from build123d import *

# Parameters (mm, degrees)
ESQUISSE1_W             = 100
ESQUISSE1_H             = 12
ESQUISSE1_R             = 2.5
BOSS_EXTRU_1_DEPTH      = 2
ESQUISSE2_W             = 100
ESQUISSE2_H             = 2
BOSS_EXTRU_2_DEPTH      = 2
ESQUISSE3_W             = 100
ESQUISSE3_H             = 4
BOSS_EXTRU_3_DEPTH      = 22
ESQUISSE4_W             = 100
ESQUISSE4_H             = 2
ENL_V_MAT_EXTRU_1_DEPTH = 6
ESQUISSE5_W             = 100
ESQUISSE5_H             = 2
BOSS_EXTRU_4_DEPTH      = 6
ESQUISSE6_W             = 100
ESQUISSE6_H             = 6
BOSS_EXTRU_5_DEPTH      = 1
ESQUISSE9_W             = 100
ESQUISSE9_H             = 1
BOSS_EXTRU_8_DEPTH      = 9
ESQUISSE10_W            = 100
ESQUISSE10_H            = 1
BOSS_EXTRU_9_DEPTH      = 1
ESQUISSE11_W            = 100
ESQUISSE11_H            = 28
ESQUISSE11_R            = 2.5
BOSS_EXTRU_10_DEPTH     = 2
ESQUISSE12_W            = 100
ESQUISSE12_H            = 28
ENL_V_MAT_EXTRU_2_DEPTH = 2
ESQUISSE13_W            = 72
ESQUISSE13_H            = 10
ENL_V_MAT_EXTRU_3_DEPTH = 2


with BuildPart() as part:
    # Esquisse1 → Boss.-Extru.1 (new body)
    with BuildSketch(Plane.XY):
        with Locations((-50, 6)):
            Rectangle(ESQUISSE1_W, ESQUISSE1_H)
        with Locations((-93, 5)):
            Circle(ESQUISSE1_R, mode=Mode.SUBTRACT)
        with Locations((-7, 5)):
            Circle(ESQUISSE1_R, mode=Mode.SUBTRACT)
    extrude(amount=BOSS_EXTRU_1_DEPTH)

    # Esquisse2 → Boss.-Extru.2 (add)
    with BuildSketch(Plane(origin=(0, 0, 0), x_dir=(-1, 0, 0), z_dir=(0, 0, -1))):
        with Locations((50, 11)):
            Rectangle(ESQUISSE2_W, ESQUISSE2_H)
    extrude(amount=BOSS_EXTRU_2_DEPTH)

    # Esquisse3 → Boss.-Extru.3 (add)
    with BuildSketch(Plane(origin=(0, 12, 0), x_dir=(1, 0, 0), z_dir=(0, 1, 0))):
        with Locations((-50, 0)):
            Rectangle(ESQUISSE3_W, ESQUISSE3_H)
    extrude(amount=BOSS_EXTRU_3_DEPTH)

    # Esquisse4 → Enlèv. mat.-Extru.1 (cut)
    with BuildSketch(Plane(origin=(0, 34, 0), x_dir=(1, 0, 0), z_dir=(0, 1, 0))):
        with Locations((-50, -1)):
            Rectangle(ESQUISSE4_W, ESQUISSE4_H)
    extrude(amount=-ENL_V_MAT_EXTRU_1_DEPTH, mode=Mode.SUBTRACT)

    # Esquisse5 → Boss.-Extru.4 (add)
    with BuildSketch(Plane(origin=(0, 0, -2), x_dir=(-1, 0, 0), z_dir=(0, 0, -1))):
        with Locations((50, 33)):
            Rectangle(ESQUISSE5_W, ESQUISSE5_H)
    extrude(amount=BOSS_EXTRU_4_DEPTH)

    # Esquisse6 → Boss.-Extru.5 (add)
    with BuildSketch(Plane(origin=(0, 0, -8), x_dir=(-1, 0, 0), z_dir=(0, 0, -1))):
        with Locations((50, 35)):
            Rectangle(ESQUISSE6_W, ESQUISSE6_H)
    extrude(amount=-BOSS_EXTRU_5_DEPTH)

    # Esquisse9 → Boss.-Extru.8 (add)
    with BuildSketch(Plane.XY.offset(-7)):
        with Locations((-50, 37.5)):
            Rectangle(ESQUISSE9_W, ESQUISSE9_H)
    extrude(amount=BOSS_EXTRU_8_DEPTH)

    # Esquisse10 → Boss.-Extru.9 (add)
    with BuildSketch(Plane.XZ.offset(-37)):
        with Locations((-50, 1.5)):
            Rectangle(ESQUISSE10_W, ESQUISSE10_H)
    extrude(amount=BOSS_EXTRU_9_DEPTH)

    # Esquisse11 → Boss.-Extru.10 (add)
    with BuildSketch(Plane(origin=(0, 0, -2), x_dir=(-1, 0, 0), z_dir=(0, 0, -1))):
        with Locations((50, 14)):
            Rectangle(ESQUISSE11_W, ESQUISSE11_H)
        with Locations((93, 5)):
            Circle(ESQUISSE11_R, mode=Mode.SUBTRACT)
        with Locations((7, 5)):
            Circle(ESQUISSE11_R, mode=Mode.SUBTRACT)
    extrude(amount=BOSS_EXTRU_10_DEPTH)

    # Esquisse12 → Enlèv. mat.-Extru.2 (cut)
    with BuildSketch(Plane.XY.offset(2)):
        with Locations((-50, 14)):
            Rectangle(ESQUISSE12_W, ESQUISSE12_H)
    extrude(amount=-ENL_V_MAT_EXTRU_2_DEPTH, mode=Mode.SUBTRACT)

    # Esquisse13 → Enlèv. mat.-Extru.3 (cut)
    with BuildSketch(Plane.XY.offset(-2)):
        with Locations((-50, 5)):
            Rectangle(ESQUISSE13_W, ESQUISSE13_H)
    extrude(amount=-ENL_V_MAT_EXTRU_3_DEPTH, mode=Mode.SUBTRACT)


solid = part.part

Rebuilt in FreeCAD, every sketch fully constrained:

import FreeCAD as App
import Part
import Sketcher
from FreeCAD import Vector

doc = App.newDocument("Part")
body = doc.addObject("PartDesign::Body", "Body")

sketch1 = body.newObject("Sketcher::SketchObject", "Sketch")
sketch1.AttachmentSupport = (doc.getObject("XY_Plane"), [""])
sketch1.MapMode = "FlatFace"
sketch1.addGeometry(Part.LineSegment(Vector(-100, 12, 0), Vector(-100, 0, 0)), False)
sketch1.addGeometry(Part.LineSegment(Vector(-100, 0, 0), Vector(0, 0, 0)), False)
sketch1.addGeometry(Part.LineSegment(Vector(0, 0, 0), Vector(0, 12, 0)), False)
sketch1.addGeometry(Part.LineSegment(Vector(0, 12, 0), Vector(-100, 12, 0)), False)
sketch1.addGeometry(Part.Circle(Vector(-93, 5, 0), Vector(0, 0, 1), 2.5), False)
sketch1.addGeometry(Part.Circle(Vector(-7, 5, 0), Vector(0, 0, 1), 2.5), False)
sketch1.addConstraint(Sketcher.Constraint("Coincident", 0, 2, 1, 1))
sketch1.addConstraint(Sketcher.Constraint("Coincident", 1, 2, 2, 1))
sketch1.addConstraint(Sketcher.Constraint("Coincident", 2, 2, 3, 1))
sketch1.addConstraint(Sketcher.Constraint("Coincident", 3, 2, 0, 1))
sketch1.addConstraint(Sketcher.Constraint("Vertical", 0))
sketch1.addConstraint(Sketcher.Constraint("Horizontal", 1))
sketch1.addConstraint(Sketcher.Constraint("Vertical", 2))
sketch1.addConstraint(Sketcher.Constraint("Horizontal", 3))
sketch1.addConstraint(Sketcher.Constraint("Coincident", 1, 2, -1, 1))
sketch1.addConstraint(Sketcher.Constraint("Equal", 4, 5))
sketch1.addConstraint(Sketcher.Constraint("Horizontal", 4, 3, 5, 3))
sketch1.addConstraint(Sketcher.Constraint("Diameter", 4, 5.0))
sketch1.addConstraint(Sketcher.Constraint("DistanceX", 1, 1, 1, 2, 100.0))
sketch1.addConstraint(Sketcher.Constraint("DistanceY", 0, 2, 0, 1, 12.0))
sketch1.addConstraint(Sketcher.Constraint("DistanceX", 4, 3, -1, 1, 93.0))
sketch1.addConstraint(Sketcher.Constraint("DistanceY", -1, 1, 4, 3, 5.0))
sketch1.addConstraint(Sketcher.Constraint("DistanceX", 5, 3, -1, 1, 7.0))
pad1 = body.newObject("PartDesign::Pad", "Pad")
pad1.Profile = sketch1
pad1.Length = 2

sketch2 = body.newObject("Sketcher::SketchObject", "Sketch001")
sketch2.AttachmentSupport = (doc.getObject("XY_Plane"), [""])
sketch2.MapMode = "FlatFace"
sketch2.addGeometry(Part.LineSegment(Vector(0, 12, 0), Vector(0, 10, 0)), False)
sketch2.addGeometry(Part.LineSegment(Vector(0, 10, 0), Vector(-100, 10, 0)), False)
sketch2.addGeometry(Part.LineSegment(Vector(-100, 10, 0), Vector(-100, 12, 0)), False)
sketch2.addGeometry(Part.LineSegment(Vector(-100, 12, 0), Vector(0, 12, 0)), False)
sketch2.addConstraint(Sketcher.Constraint("Coincident", 0, 2, 1, 1))
sketch2.addConstraint(Sketcher.Constraint("Coincident", 1, 2, 2, 1))
sketch2.addConstraint(Sketcher.Constraint("Coincident", 2, 2, 3, 1))
sketch2.addConstraint(Sketcher.Constraint("Coincident", 3, 2, 0, 1))
sketch2.addConstraint(Sketcher.Constraint("Vertical", 0))
sketch2.addConstraint(Sketcher.Constraint("Horizontal", 1))
sketch2.addConstraint(Sketcher.Constraint("Vertical", 2))
sketch2.addConstraint(Sketcher.Constraint("Horizontal", 3))
sketch2.addConstraint(Sketcher.Constraint("PointOnObject", 0, 2, -2))
sketch2.addConstraint(Sketcher.Constraint("DistanceX", 1, 2, 1, 1, 100.0))
sketch2.addConstraint(Sketcher.Constraint("DistanceY", 0, 2, 0, 1, 2.0))
sketch2.addConstraint(Sketcher.Constraint("DistanceY", -1, 1, 0, 2, 10.0))
pad2 = body.newObject("PartDesign::Pad", "Pad001")
pad2.Profile = sketch2
pad2.Length = 2
pad2.Reversed = True

sketch3 = body.newObject("Sketcher::SketchObject", "Sketch002")
sketch3.AttachmentSupport = (doc.getObject("XZ_Plane"), [""])
sketch3.MapMode = "FlatFace"
sketch3.AttachmentOffset = App.Placement(Vector(0, 0, -12), App.Rotation())
sketch3.addGeometry(Part.LineSegment(Vector(-100, -2, 0), Vector(-100, 2, 0)), False)
sketch3.addGeometry(Part.LineSegment(Vector(-100, 2, 0), Vector(0, 2, 0)), False)
sketch3.addGeometry(Part.LineSegment(Vector(0, 2, 0), Vector(0, -2, 0)), False)
sketch3.addGeometry(Part.LineSegment(Vector(0, -2, 0), Vector(-100, -2, 0)), False)
sketch3.addConstraint(Sketcher.Constraint("Coincident", 0, 2, 1, 1))
sketch3.addConstraint(Sketcher.Constraint("Coincident", 1, 2, 2, 1))
sketch3.addConstraint(Sketcher.Constraint("Coincident", 2, 2, 3, 1))
sketch3.addConstraint(Sketcher.Constraint("Coincident", 3, 2, 0, 1))
sketch3.addConstraint(Sketcher.Constraint("Vertical", 0))
sketch3.addConstraint(Sketcher.Constraint("Horizontal", 1))
sketch3.addConstraint(Sketcher.Constraint("Vertical", 2))
sketch3.addConstraint(Sketcher.Constraint("Horizontal", 3))
sketch3.addConstraint(Sketcher.Constraint("Symmetric", 1, 2, 2, 2, -1, 1))
sketch3.addConstraint(Sketcher.Constraint("DistanceX", 1, 1, 1, 2, 100.0))
sketch3.addConstraint(Sketcher.Constraint("DistanceY", 0, 1, 0, 2, 4.0))
pad3 = body.newObject("PartDesign::Pad", "Pad002")
pad3.Profile = sketch3
pad3.Length = 22
pad3.Reversed = True

sketch4 = body.newObject("Sketcher::SketchObject", "Sketch003")
sketch4.AttachmentSupport = (doc.getObject("XZ_Plane"), [""])
sketch4.MapMode = "FlatFace"
sketch4.AttachmentOffset = App.Placement(Vector(0, 0, -34), App.Rotation())
sketch4.addGeometry(Part.LineSegment(Vector(-100, 0, 0), Vector(-100, 2, 0)), False)
sketch4.addGeometry(Part.LineSegment(Vector(-100, 2, 0), Vector(0, 2, 0)), False)
sketch4.addGeometry(Part.LineSegment(Vector(0, 2, 0), Vector(0, 0, 0)), False)
sketch4.addGeometry(Part.LineSegment(Vector(0, 0, 0), Vector(-100, 0, 0)), False)
sketch4.addConstraint(Sketcher.Constraint("Coincident", 0, 2, 1, 1))
sketch4.addConstraint(Sketcher.Constraint("Coincident", 1, 2, 2, 1))
sketch4.addConstraint(Sketcher.Constraint("Coincident", 2, 2, 3, 1))
sketch4.addConstraint(Sketcher.Constraint("Coincident", 3, 2, 0, 1))
sketch4.addConstraint(Sketcher.Constraint("Vertical", 0))
sketch4.addConstraint(Sketcher.Constraint("Horizontal", 1))
sketch4.addConstraint(Sketcher.Constraint("Vertical", 2))
sketch4.addConstraint(Sketcher.Constraint("Horizontal", 3))
sketch4.addConstraint(Sketcher.Constraint("Coincident", 2, 2, -1, 1))
sketch4.addConstraint(Sketcher.Constraint("DistanceX", 1, 1, 1, 2, 100.0))
sketch4.addConstraint(Sketcher.Constraint("DistanceY", 0, 1, 0, 2, 2.0))
pocket1 = body.newObject("PartDesign::Pocket", "Pocket")
pocket1.Profile = sketch4
pocket1.Length = 6
pocket1.Reversed = True

sketch5 = body.newObject("Sketcher::SketchObject", "Sketch004")
sketch5.AttachmentSupport = (doc.getObject("XY_Plane"), [""])
sketch5.MapMode = "FlatFace"
sketch5.AttachmentOffset = App.Placement(Vector(0, 0, -2), App.Rotation())
sketch5.addGeometry(Part.LineSegment(Vector(0, 34, 0), Vector(0, 32, 0)), False)
sketch5.addGeometry(Part.LineSegment(Vector(0, 32, 0), Vector(-100, 32, 0)), False)
sketch5.addGeometry(Part.LineSegment(Vector(-100, 32, 0), Vector(-100, 34, 0)), False)
sketch5.addGeometry(Part.LineSegment(Vector(-100, 34, 0), Vector(0, 34, 0)), False)
sketch5.addConstraint(Sketcher.Constraint("Coincident", 0, 2, 1, 1))
sketch5.addConstraint(Sketcher.Constraint("Coincident", 1, 2, 2, 1))
sketch5.addConstraint(Sketcher.Constraint("Coincident", 2, 2, 3, 1))
sketch5.addConstraint(Sketcher.Constraint("Coincident", 3, 2, 0, 1))
sketch5.addConstraint(Sketcher.Constraint("Vertical", 0))
sketch5.addConstraint(Sketcher.Constraint("Horizontal", 1))
sketch5.addConstraint(Sketcher.Constraint("Vertical", 2))
sketch5.addConstraint(Sketcher.Constraint("Horizontal", 3))
sketch5.addConstraint(Sketcher.Constraint("PointOnObject", 0, 2, -2))
sketch5.addConstraint(Sketcher.Constraint("DistanceX", 1, 2, 1, 1, 100.0))
sketch5.addConstraint(Sketcher.Constraint("DistanceY", 0, 2, 0, 1, 2.0))
sketch5.addConstraint(Sketcher.Constraint("DistanceY", -1, 1, 0, 2, 32.0))
pad4 = body.newObject("PartDesign::Pad", "Pad003")
pad4.Profile = sketch5
pad4.Length = 6
pad4.Reversed = True

sketch6 = body.newObject("Sketcher::SketchObject", "Sketch005")
sketch6.AttachmentSupport = (doc.getObject("XY_Plane"), [""])
sketch6.MapMode = "FlatFace"
sketch6.AttachmentOffset = App.Placement(Vector(0, 0, -8), App.Rotation())
sketch6.addGeometry(Part.LineSegment(Vector(0, 38, 0), Vector(0, 32, 0)), False)
sketch6.addGeometry(Part.LineSegment(Vector(0, 32, 0), Vector(-100, 32, 0)), False)
sketch6.addGeometry(Part.LineSegment(Vector(-100, 32, 0), Vector(-100, 38, 0)), False)
sketch6.addGeometry(Part.LineSegment(Vector(-100, 38, 0), Vector(0, 38, 0)), False)
sketch6.addConstraint(Sketcher.Constraint("Coincident", 0, 2, 1, 1))
sketch6.addConstraint(Sketcher.Constraint("Coincident", 1, 2, 2, 1))
sketch6.addConstraint(Sketcher.Constraint("Coincident", 2, 2, 3, 1))
sketch6.addConstraint(Sketcher.Constraint("Coincident", 3, 2, 0, 1))
sketch6.addConstraint(Sketcher.Constraint("Vertical", 0))
sketch6.addConstraint(Sketcher.Constraint("Horizontal", 1))
sketch6.addConstraint(Sketcher.Constraint("Vertical", 2))
sketch6.addConstraint(Sketcher.Constraint("Horizontal", 3))
sketch6.addConstraint(Sketcher.Constraint("PointOnObject", 0, 2, -2))
sketch6.addConstraint(Sketcher.Constraint("DistanceX", 1, 2, 1, 1, 100.0))
sketch6.addConstraint(Sketcher.Constraint("DistanceY", 0, 2, 0, 1, 6.0))
sketch6.addConstraint(Sketcher.Constraint("DistanceY", -1, 1, 0, 2, 32.0))
pad5 = body.newObject("PartDesign::Pad", "Pad004")
pad5.Profile = sketch6
pad5.Length = 1

sketch7 = body.newObject("Sketcher::SketchObject", "Sketch006")
sketch7.AttachmentSupport = (doc.getObject("XY_Plane"), [""])
sketch7.MapMode = "FlatFace"
sketch7.AttachmentOffset = App.Placement(Vector(0, 0, -7), App.Rotation())
sketch7.addGeometry(Part.LineSegment(Vector(-100, 38, 0), Vector(-100, 37, 0)), False)
sketch7.addGeometry(Part.LineSegment(Vector(-100, 37, 0), Vector(0, 37, 0)), False)
sketch7.addGeometry(Part.LineSegment(Vector(0, 37, 0), Vector(0, 38, 0)), False)
sketch7.addGeometry(Part.LineSegment(Vector(0, 38, 0), Vector(-100, 38, 0)), False)
sketch7.addConstraint(Sketcher.Constraint("Coincident", 0, 2, 1, 1))
sketch7.addConstraint(Sketcher.Constraint("Coincident", 1, 2, 2, 1))
sketch7.addConstraint(Sketcher.Constraint("Coincident", 2, 2, 3, 1))
sketch7.addConstraint(Sketcher.Constraint("Coincident", 3, 2, 0, 1))
sketch7.addConstraint(Sketcher.Constraint("Vertical", 0))
sketch7.addConstraint(Sketcher.Constraint("Horizontal", 1))
sketch7.addConstraint(Sketcher.Constraint("Vertical", 2))
sketch7.addConstraint(Sketcher.Constraint("Horizontal", 3))
sketch7.addConstraint(Sketcher.Constraint("PointOnObject", 1, 2, -2))
sketch7.addConstraint(Sketcher.Constraint("DistanceX", 1, 1, 1, 2, 100.0))
sketch7.addConstraint(Sketcher.Constraint("DistanceY", 0, 2, 0, 1, 1.0))
sketch7.addConstraint(Sketcher.Constraint("DistanceY", -1, 1, 0, 2, 37.0))
pad6 = body.newObject("PartDesign::Pad", "Pad005")
pad6.Profile = sketch7
pad6.Length = 9

sketch8 = body.newObject("Sketcher::SketchObject", "Sketch007")
sketch8.AttachmentSupport = (doc.getObject("XZ_Plane"), [""])
sketch8.MapMode = "FlatFace"
sketch8.AttachmentOffset = App.Placement(Vector(0, 0, -37), App.Rotation())
sketch8.addGeometry(Part.LineSegment(Vector(-100, 2, 0), Vector(-100, 1, 0)), False)
sketch8.addGeometry(Part.LineSegment(Vector(-100, 1, 0), Vector(0, 1, 0)), False)
sketch8.addGeometry(Part.LineSegment(Vector(0, 1, 0), Vector(0, 2, 0)), False)
sketch8.addGeometry(Part.LineSegment(Vector(0, 2, 0), Vector(-100, 2, 0)), False)
sketch8.addConstraint(Sketcher.Constraint("Coincident", 0, 2, 1, 1))
sketch8.addConstraint(Sketcher.Constraint("Coincident", 1, 2, 2, 1))
sketch8.addConstraint(Sketcher.Constraint("Coincident", 2, 2, 3, 1))
sketch8.addConstraint(Sketcher.Constraint("Coincident", 3, 2, 0, 1))
sketch8.addConstraint(Sketcher.Constraint("Vertical", 0))
sketch8.addConstraint(Sketcher.Constraint("Horizontal", 1))
sketch8.addConstraint(Sketcher.Constraint("Vertical", 2))
sketch8.addConstraint(Sketcher.Constraint("Horizontal", 3))
sketch8.addConstraint(Sketcher.Constraint("PointOnObject", 1, 2, -2))
sketch8.addConstraint(Sketcher.Constraint("DistanceX", 1, 1, 1, 2, 100.0))
sketch8.addConstraint(Sketcher.Constraint("DistanceY", 0, 2, 0, 1, 1.0))
sketch8.addConstraint(Sketcher.Constraint("DistanceY", -1, 1, 0, 2, 1.0))
pad7 = body.newObject("PartDesign::Pad", "Pad006")
pad7.Profile = sketch8
pad7.Length = 1

sketch9 = body.newObject("Sketcher::SketchObject", "Sketch008")
sketch9.AttachmentSupport = (doc.getObject("XY_Plane"), [""])
sketch9.MapMode = "FlatFace"
sketch9.AttachmentOffset = App.Placement(Vector(0, 0, -2), App.Rotation())
sketch9.addGeometry(Part.LineSegment(Vector(0, 28, 0), Vector(0, 0, 0)), False)
sketch9.addGeometry(Part.LineSegment(Vector(0, 0, 0), Vector(-100, 0, 0)), False)
sketch9.addGeometry(Part.LineSegment(Vector(-100, 0, 0), Vector(-100, 28, 0)), False)
sketch9.addGeometry(Part.LineSegment(Vector(-100, 28, 0), Vector(0, 28, 0)), False)
sketch9.addGeometry(Part.Circle(Vector(-7, 5, 0), Vector(0, 0, 1), 2.5), False)
sketch9.addGeometry(Part.Circle(Vector(-93, 5, 0), Vector(0, 0, 1), 2.5), False)
sketch9.addConstraint(Sketcher.Constraint("Coincident", 0, 2, 1, 1))
sketch9.addConstraint(Sketcher.Constraint("Coincident", 1, 2, 2, 1))
sketch9.addConstraint(Sketcher.Constraint("Coincident", 2, 2, 3, 1))
sketch9.addConstraint(Sketcher.Constraint("Coincident", 3, 2, 0, 1))
sketch9.addConstraint(Sketcher.Constraint("Vertical", 0))
sketch9.addConstraint(Sketcher.Constraint("Horizontal", 1))
sketch9.addConstraint(Sketcher.Constraint("Vertical", 2))
sketch9.addConstraint(Sketcher.Constraint("Horizontal", 3))
sketch9.addConstraint(Sketcher.Constraint("Coincident", 0, 2, -1, 1))
sketch9.addConstraint(Sketcher.Constraint("Equal", 4, 5))
sketch9.addConstraint(Sketcher.Constraint("Horizontal", 4, 3, 5, 3))
sketch9.addConstraint(Sketcher.Constraint("Diameter", 4, 5.0))
sketch9.addConstraint(Sketcher.Constraint("DistanceX", 1, 2, 1, 1, 100.0))
sketch9.addConstraint(Sketcher.Constraint("DistanceY", 0, 2, 0, 1, 28.0))
sketch9.addConstraint(Sketcher.Constraint("DistanceX", 4, 3, -1, 1, 7.0))
sketch9.addConstraint(Sketcher.Constraint("DistanceY", -1, 1, 4, 3, 5.0))
sketch9.addConstraint(Sketcher.Constraint("DistanceX", 5, 3, -1, 1, 93.0))
pad8 = body.newObject("PartDesign::Pad", "Pad007")
pad8.Profile = sketch9
pad8.Length = 2
pad8.Reversed = True

sketch10 = body.newObject("Sketcher::SketchObject", "Sketch009")
sketch10.AttachmentSupport = (doc.getObject("XY_Plane"), [""])
sketch10.MapMode = "FlatFace"
sketch10.AttachmentOffset = App.Placement(Vector(0, 0, 2), App.Rotation())
sketch10.addGeometry(Part.LineSegment(Vector(-100, 28, 0), Vector(-100, 0, 0)), False)
sketch10.addGeometry(Part.LineSegment(Vector(-100, 0, 0), Vector(0, 0, 0)), False)
sketch10.addGeometry(Part.LineSegment(Vector(0, 0, 0), Vector(0, 28, 0)), False)
sketch10.addGeometry(Part.LineSegment(Vector(0, 28, 0), Vector(-100, 28, 0)), False)
sketch10.addConstraint(Sketcher.Constraint("Coincident", 0, 2, 1, 1))
sketch10.addConstraint(Sketcher.Constraint("Coincident", 1, 2, 2, 1))
sketch10.addConstraint(Sketcher.Constraint("Coincident", 2, 2, 3, 1))
sketch10.addConstraint(Sketcher.Constraint("Coincident", 3, 2, 0, 1))
sketch10.addConstraint(Sketcher.Constraint("Vertical", 0))
sketch10.addConstraint(Sketcher.Constraint("Horizontal", 1))
sketch10.addConstraint(Sketcher.Constraint("Vertical", 2))
sketch10.addConstraint(Sketcher.Constraint("Horizontal", 3))
sketch10.addConstraint(Sketcher.Constraint("Coincident", 1, 2, -1, 1))
sketch10.addConstraint(Sketcher.Constraint("DistanceX", 1, 1, 1, 2, 100.0))
sketch10.addConstraint(Sketcher.Constraint("DistanceY", 0, 2, 0, 1, 28.0))
pocket2 = body.newObject("PartDesign::Pocket", "Pocket001")
pocket2.Profile = sketch10
pocket2.Length = 2

sketch11 = body.newObject("Sketcher::SketchObject", "Sketch010")
sketch11.AttachmentSupport = (doc.getObject("XY_Plane"), [""])
sketch11.MapMode = "FlatFace"
sketch11.AttachmentOffset = App.Placement(Vector(0, 0, -2), App.Rotation())
sketch11.addGeometry(Part.LineSegment(Vector(-86, 10, 0), Vector(-86, 0, 0)), False)
sketch11.addGeometry(Part.LineSegment(Vector(-86, 0, 0), Vector(-14, 0, 0)), False)
sketch11.addGeometry(Part.LineSegment(Vector(-14, 0, 0), Vector(-14, 10, 0)), False)
sketch11.addGeometry(Part.LineSegment(Vector(-14, 10, 0), Vector(-86, 10, 0)), False)
sketch11.addConstraint(Sketcher.Constraint("Coincident", 0, 2, 1, 1))
sketch11.addConstraint(Sketcher.Constraint("Coincident", 1, 2, 2, 1))
sketch11.addConstraint(Sketcher.Constraint("Coincident", 2, 2, 3, 1))
sketch11.addConstraint(Sketcher.Constraint("Coincident", 3, 2, 0, 1))
sketch11.addConstraint(Sketcher.Constraint("Vertical", 0))
sketch11.addConstraint(Sketcher.Constraint("Horizontal", 1))
sketch11.addConstraint(Sketcher.Constraint("Vertical", 2))
sketch11.addConstraint(Sketcher.Constraint("Horizontal", 3))
sketch11.addConstraint(Sketcher.Constraint("PointOnObject", 0, 2, -1))
sketch11.addConstraint(Sketcher.Constraint("DistanceX", 1, 1, 1, 2, 72.0))
sketch11.addConstraint(Sketcher.Constraint("DistanceY", 0, 2, 0, 1, 10.0))
sketch11.addConstraint(Sketcher.Constraint("DistanceX", 0, 2, -1, 1, 86.0))
pocket3 = body.newObject("PartDesign::Pocket", "Pocket002")
pocket3.Profile = sketch11
pocket3.Length = 2

doc.recompute()
